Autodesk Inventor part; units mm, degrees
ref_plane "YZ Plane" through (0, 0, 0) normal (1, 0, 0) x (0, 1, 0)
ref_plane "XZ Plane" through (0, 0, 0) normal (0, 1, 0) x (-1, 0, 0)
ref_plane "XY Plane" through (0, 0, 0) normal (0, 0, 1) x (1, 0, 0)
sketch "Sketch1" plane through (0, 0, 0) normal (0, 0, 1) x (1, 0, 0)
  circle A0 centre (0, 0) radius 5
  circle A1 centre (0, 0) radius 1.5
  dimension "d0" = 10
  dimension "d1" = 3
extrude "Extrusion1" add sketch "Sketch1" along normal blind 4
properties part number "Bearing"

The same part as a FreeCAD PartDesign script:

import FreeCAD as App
import Part
import Sketcher

V = App.Vector
Q = App.Units.Quantity

doc = App.newDocument("Part")
body = doc.addObject("PartDesign::Body", "Body")

# Sketch on XY plane
sketch1 = doc.addObject("Sketcher::SketchObject", "Sketch")
body.addObject(sketch1)
sketch1.AttachmentSupport = (doc.XY_Plane, [""])
sketch1.MapMode = "FlatFace"
sketch1.addGeometry([
    Part.Circle(V(0, 0, 0), V(0, 0, 1), 5),
    Part.Circle(V(0, 0, 0), V(0, 0, 1), 1.5),
], False)
sketch1.addConstraint([
    Sketcher.Constraint("Coincident", 0, 3, -1, 1),
    Sketcher.Constraint("Coincident", 1, 3, -1, 1),
    Sketcher.Constraint("Diameter", 0, Q("10 mm")),
    Sketcher.Constraint("Diameter", 1, Q("3 mm")),
])
pad1 = doc.addObject("PartDesign::Pad", "Pad")
body.addObject(pad1)
pad1.Profile = sketch1
pad1.Length = 4

doc.recompute()
